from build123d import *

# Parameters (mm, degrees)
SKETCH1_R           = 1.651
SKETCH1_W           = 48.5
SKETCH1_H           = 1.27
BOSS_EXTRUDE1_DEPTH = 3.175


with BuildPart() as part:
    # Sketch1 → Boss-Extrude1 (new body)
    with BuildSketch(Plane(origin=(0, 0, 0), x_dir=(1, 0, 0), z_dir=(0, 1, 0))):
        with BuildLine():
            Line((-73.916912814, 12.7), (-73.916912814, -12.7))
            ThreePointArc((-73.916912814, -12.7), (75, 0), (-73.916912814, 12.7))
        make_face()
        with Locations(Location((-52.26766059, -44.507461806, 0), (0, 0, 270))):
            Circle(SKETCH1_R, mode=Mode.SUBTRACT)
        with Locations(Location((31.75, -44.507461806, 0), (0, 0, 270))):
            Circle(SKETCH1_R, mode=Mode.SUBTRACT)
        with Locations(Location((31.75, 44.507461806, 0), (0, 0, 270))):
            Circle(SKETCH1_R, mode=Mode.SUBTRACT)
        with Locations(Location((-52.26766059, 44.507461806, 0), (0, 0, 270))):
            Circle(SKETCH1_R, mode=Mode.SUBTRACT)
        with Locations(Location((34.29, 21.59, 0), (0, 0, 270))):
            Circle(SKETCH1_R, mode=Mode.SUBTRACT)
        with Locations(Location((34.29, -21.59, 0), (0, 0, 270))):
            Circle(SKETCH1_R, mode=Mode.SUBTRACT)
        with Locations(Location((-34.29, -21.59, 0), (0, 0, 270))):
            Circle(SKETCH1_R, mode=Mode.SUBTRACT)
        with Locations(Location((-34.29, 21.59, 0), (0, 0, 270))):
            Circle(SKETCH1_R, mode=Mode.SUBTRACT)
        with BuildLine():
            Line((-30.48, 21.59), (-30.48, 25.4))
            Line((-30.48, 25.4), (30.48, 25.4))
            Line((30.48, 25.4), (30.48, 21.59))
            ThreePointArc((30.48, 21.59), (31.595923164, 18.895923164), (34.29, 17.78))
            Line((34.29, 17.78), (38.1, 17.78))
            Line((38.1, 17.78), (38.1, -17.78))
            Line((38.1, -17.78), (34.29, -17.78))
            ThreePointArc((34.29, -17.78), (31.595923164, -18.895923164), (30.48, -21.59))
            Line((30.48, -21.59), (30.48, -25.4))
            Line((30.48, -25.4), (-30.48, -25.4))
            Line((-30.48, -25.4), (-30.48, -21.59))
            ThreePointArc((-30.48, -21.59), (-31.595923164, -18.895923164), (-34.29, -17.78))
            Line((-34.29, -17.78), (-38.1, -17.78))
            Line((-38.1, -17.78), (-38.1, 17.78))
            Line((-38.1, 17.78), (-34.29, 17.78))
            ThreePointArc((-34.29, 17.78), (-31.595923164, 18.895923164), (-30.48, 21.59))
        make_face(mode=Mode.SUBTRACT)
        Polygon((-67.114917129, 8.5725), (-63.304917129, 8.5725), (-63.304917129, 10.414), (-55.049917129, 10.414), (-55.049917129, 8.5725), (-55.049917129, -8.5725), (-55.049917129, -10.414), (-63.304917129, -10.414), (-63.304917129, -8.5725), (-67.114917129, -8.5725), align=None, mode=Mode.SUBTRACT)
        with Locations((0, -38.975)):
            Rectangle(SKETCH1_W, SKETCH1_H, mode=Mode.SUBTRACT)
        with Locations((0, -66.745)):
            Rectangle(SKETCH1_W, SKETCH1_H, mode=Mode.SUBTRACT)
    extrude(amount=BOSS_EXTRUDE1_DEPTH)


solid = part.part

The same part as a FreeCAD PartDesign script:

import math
import FreeCAD as App
import Part
import Sketcher
Q = App.Units.Quantity


def add_polygon(sketch, points):
    """Adds a closed chain of lines whose ends are joined by coincident constraints."""
    first, n = sketch.GeometryCount, len(points)
    for a, b in zip(points, points[1:] + points[:1]):
        sketch.addGeometry(Part.LineSegment(App.Vector(*a, 0), App.Vector(*b, 0)), False)
    for i in range(n):
        sketch.addConstraint(Sketcher.Constraint("Coincident", first + i, 2, first + (i + 1) % n, 1))

doc = App.newDocument("Part")
body = doc.addObject("PartDesign::Body", "Body")

# Sketch on XZ plane
sketch1 = doc.addObject("Sketcher::SketchObject", "Sketch")
body.addObject(sketch1)
sketch1.AttachmentSupport = (doc.XZ_Plane, [""])
sketch1.MapMode = "FlatFace"
sketch1.addGeometry(Part.LineSegment(App.Vector(-73.9, -12.7, 0), App.Vector(-73.9, 12.7, 0)), False)  # 0
sketch1.addGeometry(Part.ArcOfCircle(Part.Circle(App.Vector(0, 0, 0), App.Vector(0, 0, 1), 75), math.radians(-170), math.radians(170)), False)  # 1
sketch1.addGeometry(Part.Circle(App.Vector(-52.3, 44.5, 0), App.Vector(0, 0, 1), 1.7), False)  # 2
sketch1.addGeometry(Part.Circle(App.Vector(-34.3, 21.6, 0), App.Vector(0, 0, 1), 1.7), False)  # 3
add_polygon(sketch1, [(24.2, 67.4), (-24.2, 67.4), (-24.2, 66.1), (24.2, 66.1)])  # lines 4-7
sketch1.addGeometry(Part.Circle(App.Vector(31.8, 44.5, 0), App.Vector(0, 0, 1), 1.7), False)  # 8
add_polygon(sketch1, [(24.2, 39.6), (-24.2, 39.6), (-24.2, 38.3), (24.2, 38.3)])  # lines 9-12
sketch1.addGeometry(Part.Circle(App.Vector(34.3, 21.6, 0), App.Vector(0, 0, 1), 1.7), False)  # 13
add_polygon(sketch1, [(-67.1, 8.6), (-67.1, -8.6), (-63.3, -8.6), (-63.3, -10.4), (-55, -10.4), (-55, 10.4), (-63.3, 10.4), (-63.3, 8.6)])  # lines 14-21
sketch1.addGeometry(Part.Circle(App.Vector(-52.3, -44.5, 0), App.Vector(0, 0, 1), 1.7), False)  # 22
sketch1.addGeometry(Part.Circle(App.Vector(-34.3, -21.6, 0), App.Vector(0, 0, 1), 1.7), False)  # 23
sketch1.addGeometry(Part.ArcOfCircle(Part.Circle(App.Vector(-34.3, -21.6, 0), App.Vector(0, 0, 1), 3.8), math.radians(0), math.radians(90)), False)  # 24
sketch1.addGeometry(Part.LineSegment(App.Vector(-30.5, -21.6, 0), App.Vector(-30.5, -25.4, 0)), False)  # 25
sketch1.addGeometry(Part.LineSegment(App.Vector(-30.5, -25.4, 0), App.Vector(30.5, -25.4, 0)), False)  # 26
sketch1.addGeometry(Part.LineSegment(App.Vector(30.5, -25.4, 0), App.Vector(30.5, -21.6, 0)), False)  # 27
sketch1.addGeometry(Part.ArcOfCircle(Part.Circle(App.Vector(34.3, -21.6, 0), App.Vector(0, 0, 1), 3.8), math.radians(90), math.radians(180)), False)  # 28
sketch1.addGeometry(Part.LineSegment(App.Vector(34.3, -17.8, 0), App.Vector(38.1, -17.8, 0)), False)  # 29
sketch1.addGeometry(Part.LineSegment(App.Vector(38.1, -17.8, 0), App.Vector(38.1, 17.8, 0)), False)  # 30
sketch1.addGeometry(Part.LineSegment(App.Vector(38.1, 17.8, 0), App.Vector(34.3, 17.8, 0)), False)  # 31
sketch1.addGeometry(Part.ArcOfCircle(Part.Circle(App.Vector(34.3, 21.6, 0), App.Vector(0, 0, 1), 3.8), math.radians(-180), math.radians(-90)), False)  # 32
sketch1.addGeometry(Part.LineSegment(App.Vector(30.5, 21.6, 0), App.Vector(30.5, 25.4, 0)), False)  # 33
sketch1.addGeometry(Part.LineSegment(App.Vector(30.5, 25.4, 0), App.Vector(-30.5, 25.4, 0)), False)  # 34
sketch1.addGeometry(Part.LineSegment(App.Vector(-30.5, 25.4, 0), App.Vector(-30.5, 21.6, 0)), False)  # 35
sketch1.addGeometry(Part.ArcOfCircle(Part.Circle(App.Vector(-34.3, 21.6, 0), App.Vector(0, 0, 1), 3.8), math.radians(-90), math.radians(0)), False)  # 36
sketch1.addGeometry(Part.LineSegment(App.Vector(-34.3, 17.8, 0), App.Vector(-38.1, 17.8, 0)), False)  # 37
sketch1.addGeometry(Part.LineSegment(App.Vector(-38.1, 17.8, 0), App.Vector(-38.1, -17.8, 0)), False)  # 38
sketch1.addGeometry(Part.LineSegment(App.Vector(-38.1, -17.8, 0), App.Vector(-34.3, -17.8, 0)), False)  # 39
sketch1.addGeometry(Part.Circle(App.Vector(34.3, -21.6, 0), App.Vector(0, 0, 1), 1.7), False)  # 40
sketch1.addGeometry(Part.Circle(App.Vector(31.8, -44.5, 0), App.Vector(0, 0, 1), 1.7), False)  # 41
sketch1.addConstraint(Sketcher.Constraint("Coincident", 0, 1, 1, 1))
sketch1.addConstraint(Sketcher.Constraint("Coincident", 1, 2, 0, 2))
sketch1.addConstraint(Sketcher.Constraint("Tangent", 24, 1, 25, 1))
sketch1.addConstraint(Sketcher.Constraint("Coincident", 25, 2, 26, 1))
sketch1.addConstraint(Sketcher.Constraint("Coincident", 26, 2, 27, 1))
sketch1.addConstraint(Sketcher.Constraint("Tangent", 27, 2, 28, 2))
sketch1.addConstraint(Sketcher.Constraint("Tangent", 28, 1, 29, 1))
sketch1.addConstraint(Sketcher.Constraint("Coincident", 29, 2, 30, 1))
sketch1.addConstraint(Sketcher.Constraint("Coincident", 30, 2, 31, 1))
sketch1.addConstraint(Sketcher.Constraint("Tangent", 31, 2, 32, 2))
sketch1.addConstraint(Sketcher.Constraint("Tangent", 32, 1, 33, 1))
sketch1.addConstraint(Sketcher.Constraint("Coincident", 33, 2, 34, 1))
sketch1.addConstraint(Sketcher.Constraint("Coincident", 34, 2, 35, 1))
sketch1.addConstraint(Sketcher.Constraint("Tangent", 35, 2, 36, 2))
sketch1.addConstraint(Sketcher.Constraint("Tangent", 36, 1, 37, 1))
sketch1.addConstraint(Sketcher.Constraint("Coincident", 37, 2, 38, 1))
sketch1.addConstraint(Sketcher.Constraint("Coincident", 38, 2, 39, 1))
sketch1.addConstraint(Sketcher.Constraint("Tangent", 39, 2, 24, 2))
sketch1.addConstraint(Sketcher.Constraint("Vertical", 0))
sketch1.addConstraint(Sketcher.Constraint("Horizontal", 4))
sketch1.addConstraint(Sketcher.Constraint("Vertical", 5))
sketch1.addConstraint(Sketcher.Constraint("Horizontal", 6))
sketch1.addConstraint(Sketcher.Constraint("Vertical", 7))
sketch1.addConstraint(Sketcher.Constraint("Horizontal", 9))
sketch1.addConstraint(Sketcher.Constraint("Vertical", 10))
sketch1.addConstraint(Sketcher.Constraint("Horizontal", 11))
sketch1.addConstraint(Sketcher.Constraint("Vertical", 12))
sketch1.addConstraint(Sketcher.Constraint("Vertical", 14))
sketch1.addConstraint(Sketcher.Constraint("Horizontal", 15))
sketch1.addConstraint(Sketcher.Constraint("Vertical", 16))
sketch1.addConstraint(Sketcher.Constraint("Horizontal", 17))
sketch1.addConstraint(Sketcher.Constraint("Vertical", 18))
sketch1.addConstraint(Sketcher.Constraint("Horizontal", 19))
sketch1.addConstraint(Sketcher.Constraint("Vertical", 20))
sketch1.addConstraint(Sketcher.Constraint("Horizontal", 21))
sketch1.addConstraint(Sketcher.Constraint("Vertical", 25))
sketch1.addConstraint(Sketcher.Constraint("Horizontal", 26))
sketch1.addConstraint(Sketcher.Constraint("Vertical", 27))
sketch1.addConstraint(Sketcher.Constraint("Horizontal", 29))
sketch1.addConstraint(Sketcher.Constraint("Vertical", 30))
sketch1.addConstraint(Sketcher.Constraint("Horizontal", 31))
sketch1.addConstraint(Sketcher.Constraint("Vertical", 33))
sketch1.addConstraint(Sketcher.Constraint("Horizontal", 34))
sketch1.addConstraint(Sketcher.Constraint("Vertical", 35))
sketch1.addConstraint(Sketcher.Constraint("Horizontal", 37))
sketch1.addConstraint(Sketcher.Constraint("Vertical", 38))
sketch1.addConstraint(Sketcher.Constraint("Horizontal", 39))
sketch1.addConstraint(Sketcher.Constraint("Coincident", 1, 3, -1, 1))
sketch1.addConstraint(Sketcher.Constraint("Coincident", 24, 3, 23, 3))
sketch1.addConstraint(Sketcher.Constraint("Coincident", 32, 3, 13, 3))
sketch1.addConstraint(Sketcher.Constraint("Coincident", 36, 3, 3, 3))
sketch1.addConstraint(Sketcher.Constraint("Coincident", 40, 3, 28, 3))
sketch1.addConstraint(Sketcher.Constraint("Equal", 2, 3))
sketch1.addConstraint(Sketcher.Constraint("Equal", 3, 8))
sketch1.addConstraint(Sketcher.Constraint("Equal", 8, 13))
sketch1.addConstraint(Sketcher.Constraint("Equal", 13, 22))
sketch1.addConstraint(Sketcher.Constraint("Equal", 22, 23))
sketch1.addConstraint(Sketcher.Constraint("Equal", 24, 28))
sketch1.addConstraint(Sketcher.Constraint("Equal", 28, 32))
sketch1.addConstraint(Sketcher.Constraint("Equal", 32, 36))
sketch1.addConstraint(Sketcher.Constraint("Equal", 23, 40))
sketch1.addConstraint(Sketcher.Constraint("Equal", 40, 41))
sketch1.addConstraint(Sketcher.Constraint("Symmetric", 13, 3, 23, 3, -1, 1))
sketch1.addConstraint(Sketcher.Constraint("Symmetric", 3, 3, 28, 3, -1, 1))
sketch1.addConstraint(Sketcher.Constraint("Symmetric", 3, 3, 13, 3, -2))
sketch1.addConstraint(Sketcher.Constraint("Symmetric", 2, 3, 22, 3, -1))
sketch1.addConstraint(Sketcher.Constraint("Symmetric", 8, 3, 41, 3, -1))
sketch1.addConstraint(Sketcher.Constraint("Symmetric", 16, 2, 19, 2, -1))
sketch1.addConstraint(Sketcher.Constraint("Horizontal", 2, 3, 8, 3))
sketch1.addConstraint(Sketcher.Constraint("Vertical", 5, 2, 9, 2))
sketch1.addConstraint(Sketcher.Constraint("Vertical", 7, 2, 11, 2))
sketch1.addConstraint(Sketcher.Constraint("Equal", 21, 29))
sketch1.addConstraint(Sketcher.Constraint("Equal", 31, 37))
sketch1.addConstraint(Sketcher.Constraint("Equal", 7, 10))
sketch1.addConstraint(Sketcher.Constraint("Equal", 16, 20))
sketch1.addConstraint(Sketcher.Constraint("Equal", 39, 25))
sketch1.addConstraint(Sketcher.Constraint("Equal", 27, 33))
sketch1.addConstraint(Sketcher.Constraint("Diameter", 2, Q("0.13 in")))
sketch1.addConstraint(Sketcher.Constraint("DistanceY", 0, 1, 0, 2, Q("1 in")))
sketch1.addConstraint(Sketcher.Constraint("Radius", 24, Q("0.15 in")))
sketch1.addConstraint(Sketcher.Constraint("DistanceX", 26, 1, 26, 2, Q("2.4 in")))
sketch1.addConstraint(Sketcher.Constraint("DistanceY", 30, 1, 30, 2, Q("1.4 in")))
sketch1.addConstraint(Sketcher.Constraint("DistanceY", 25, 2, -1, 1, Q("1 in")))
sketch1.addConstraint(Sketcher.Constraint("DistanceY", 5, 2, 5, 1, Q("0.05 in")))
sketch1.addConstraint(Sketcher.Constraint("DistanceY", 18, 1, 18, 2, Q("0.82 in")))
sketch1.addConstraint(Sketcher.Constraint("DistanceX", 3, 3, 8, 3, Q("2.6 in")))
sketch1.addConstraint(Sketcher.Constraint("DistanceX", 17, 1, 17, 2, Q("0.325 in")))
sketch1.addConstraint(Sketcher.Constraint("DistanceY", 14, 2, 14, 1, Q("0.675 in")))
sketch1.addConstraint(Sketcher.Constraint("Radius", 1, Q("75 mm")))
sketch1.addConstraint(Sketcher.Constraint("DistanceX", 4, 2, 4, 1, Q("48.5 mm")))
sketch1.addConstraint(Sketcher.Constraint("DistanceX", 4, 2, -1, 1, Q("24.25 mm")))
sketch1.addConstraint(Sketcher.Constraint("DistanceY", -1, 1, 4, 2, Q("67.38 mm")))
sketch1.addConstraint(Sketcher.Constraint("DistanceY", -1, 1, 9, 2, Q("39.61 mm")))
sketch1.addConstraint(Sketcher.Constraint("DistanceX", 2, 3, -1, 1, Q("52.267661 mm")))
sketch1.addConstraint(Sketcher.Constraint("DistanceY", -1, 1, 2, 3, Q("44.507462 mm")))
sketch1.addConstraint(Sketcher.Constraint("DistanceX", 14, 2, -1, 1, Q("67.114917 mm")))
pad1 = doc.addObject("PartDesign::Pad", "Pad")
body.addObject(pad1)
pad1.Profile = sketch1
pad1.Length = Q("0.125 in")
pad1.Reversed = True

doc.recompute()
